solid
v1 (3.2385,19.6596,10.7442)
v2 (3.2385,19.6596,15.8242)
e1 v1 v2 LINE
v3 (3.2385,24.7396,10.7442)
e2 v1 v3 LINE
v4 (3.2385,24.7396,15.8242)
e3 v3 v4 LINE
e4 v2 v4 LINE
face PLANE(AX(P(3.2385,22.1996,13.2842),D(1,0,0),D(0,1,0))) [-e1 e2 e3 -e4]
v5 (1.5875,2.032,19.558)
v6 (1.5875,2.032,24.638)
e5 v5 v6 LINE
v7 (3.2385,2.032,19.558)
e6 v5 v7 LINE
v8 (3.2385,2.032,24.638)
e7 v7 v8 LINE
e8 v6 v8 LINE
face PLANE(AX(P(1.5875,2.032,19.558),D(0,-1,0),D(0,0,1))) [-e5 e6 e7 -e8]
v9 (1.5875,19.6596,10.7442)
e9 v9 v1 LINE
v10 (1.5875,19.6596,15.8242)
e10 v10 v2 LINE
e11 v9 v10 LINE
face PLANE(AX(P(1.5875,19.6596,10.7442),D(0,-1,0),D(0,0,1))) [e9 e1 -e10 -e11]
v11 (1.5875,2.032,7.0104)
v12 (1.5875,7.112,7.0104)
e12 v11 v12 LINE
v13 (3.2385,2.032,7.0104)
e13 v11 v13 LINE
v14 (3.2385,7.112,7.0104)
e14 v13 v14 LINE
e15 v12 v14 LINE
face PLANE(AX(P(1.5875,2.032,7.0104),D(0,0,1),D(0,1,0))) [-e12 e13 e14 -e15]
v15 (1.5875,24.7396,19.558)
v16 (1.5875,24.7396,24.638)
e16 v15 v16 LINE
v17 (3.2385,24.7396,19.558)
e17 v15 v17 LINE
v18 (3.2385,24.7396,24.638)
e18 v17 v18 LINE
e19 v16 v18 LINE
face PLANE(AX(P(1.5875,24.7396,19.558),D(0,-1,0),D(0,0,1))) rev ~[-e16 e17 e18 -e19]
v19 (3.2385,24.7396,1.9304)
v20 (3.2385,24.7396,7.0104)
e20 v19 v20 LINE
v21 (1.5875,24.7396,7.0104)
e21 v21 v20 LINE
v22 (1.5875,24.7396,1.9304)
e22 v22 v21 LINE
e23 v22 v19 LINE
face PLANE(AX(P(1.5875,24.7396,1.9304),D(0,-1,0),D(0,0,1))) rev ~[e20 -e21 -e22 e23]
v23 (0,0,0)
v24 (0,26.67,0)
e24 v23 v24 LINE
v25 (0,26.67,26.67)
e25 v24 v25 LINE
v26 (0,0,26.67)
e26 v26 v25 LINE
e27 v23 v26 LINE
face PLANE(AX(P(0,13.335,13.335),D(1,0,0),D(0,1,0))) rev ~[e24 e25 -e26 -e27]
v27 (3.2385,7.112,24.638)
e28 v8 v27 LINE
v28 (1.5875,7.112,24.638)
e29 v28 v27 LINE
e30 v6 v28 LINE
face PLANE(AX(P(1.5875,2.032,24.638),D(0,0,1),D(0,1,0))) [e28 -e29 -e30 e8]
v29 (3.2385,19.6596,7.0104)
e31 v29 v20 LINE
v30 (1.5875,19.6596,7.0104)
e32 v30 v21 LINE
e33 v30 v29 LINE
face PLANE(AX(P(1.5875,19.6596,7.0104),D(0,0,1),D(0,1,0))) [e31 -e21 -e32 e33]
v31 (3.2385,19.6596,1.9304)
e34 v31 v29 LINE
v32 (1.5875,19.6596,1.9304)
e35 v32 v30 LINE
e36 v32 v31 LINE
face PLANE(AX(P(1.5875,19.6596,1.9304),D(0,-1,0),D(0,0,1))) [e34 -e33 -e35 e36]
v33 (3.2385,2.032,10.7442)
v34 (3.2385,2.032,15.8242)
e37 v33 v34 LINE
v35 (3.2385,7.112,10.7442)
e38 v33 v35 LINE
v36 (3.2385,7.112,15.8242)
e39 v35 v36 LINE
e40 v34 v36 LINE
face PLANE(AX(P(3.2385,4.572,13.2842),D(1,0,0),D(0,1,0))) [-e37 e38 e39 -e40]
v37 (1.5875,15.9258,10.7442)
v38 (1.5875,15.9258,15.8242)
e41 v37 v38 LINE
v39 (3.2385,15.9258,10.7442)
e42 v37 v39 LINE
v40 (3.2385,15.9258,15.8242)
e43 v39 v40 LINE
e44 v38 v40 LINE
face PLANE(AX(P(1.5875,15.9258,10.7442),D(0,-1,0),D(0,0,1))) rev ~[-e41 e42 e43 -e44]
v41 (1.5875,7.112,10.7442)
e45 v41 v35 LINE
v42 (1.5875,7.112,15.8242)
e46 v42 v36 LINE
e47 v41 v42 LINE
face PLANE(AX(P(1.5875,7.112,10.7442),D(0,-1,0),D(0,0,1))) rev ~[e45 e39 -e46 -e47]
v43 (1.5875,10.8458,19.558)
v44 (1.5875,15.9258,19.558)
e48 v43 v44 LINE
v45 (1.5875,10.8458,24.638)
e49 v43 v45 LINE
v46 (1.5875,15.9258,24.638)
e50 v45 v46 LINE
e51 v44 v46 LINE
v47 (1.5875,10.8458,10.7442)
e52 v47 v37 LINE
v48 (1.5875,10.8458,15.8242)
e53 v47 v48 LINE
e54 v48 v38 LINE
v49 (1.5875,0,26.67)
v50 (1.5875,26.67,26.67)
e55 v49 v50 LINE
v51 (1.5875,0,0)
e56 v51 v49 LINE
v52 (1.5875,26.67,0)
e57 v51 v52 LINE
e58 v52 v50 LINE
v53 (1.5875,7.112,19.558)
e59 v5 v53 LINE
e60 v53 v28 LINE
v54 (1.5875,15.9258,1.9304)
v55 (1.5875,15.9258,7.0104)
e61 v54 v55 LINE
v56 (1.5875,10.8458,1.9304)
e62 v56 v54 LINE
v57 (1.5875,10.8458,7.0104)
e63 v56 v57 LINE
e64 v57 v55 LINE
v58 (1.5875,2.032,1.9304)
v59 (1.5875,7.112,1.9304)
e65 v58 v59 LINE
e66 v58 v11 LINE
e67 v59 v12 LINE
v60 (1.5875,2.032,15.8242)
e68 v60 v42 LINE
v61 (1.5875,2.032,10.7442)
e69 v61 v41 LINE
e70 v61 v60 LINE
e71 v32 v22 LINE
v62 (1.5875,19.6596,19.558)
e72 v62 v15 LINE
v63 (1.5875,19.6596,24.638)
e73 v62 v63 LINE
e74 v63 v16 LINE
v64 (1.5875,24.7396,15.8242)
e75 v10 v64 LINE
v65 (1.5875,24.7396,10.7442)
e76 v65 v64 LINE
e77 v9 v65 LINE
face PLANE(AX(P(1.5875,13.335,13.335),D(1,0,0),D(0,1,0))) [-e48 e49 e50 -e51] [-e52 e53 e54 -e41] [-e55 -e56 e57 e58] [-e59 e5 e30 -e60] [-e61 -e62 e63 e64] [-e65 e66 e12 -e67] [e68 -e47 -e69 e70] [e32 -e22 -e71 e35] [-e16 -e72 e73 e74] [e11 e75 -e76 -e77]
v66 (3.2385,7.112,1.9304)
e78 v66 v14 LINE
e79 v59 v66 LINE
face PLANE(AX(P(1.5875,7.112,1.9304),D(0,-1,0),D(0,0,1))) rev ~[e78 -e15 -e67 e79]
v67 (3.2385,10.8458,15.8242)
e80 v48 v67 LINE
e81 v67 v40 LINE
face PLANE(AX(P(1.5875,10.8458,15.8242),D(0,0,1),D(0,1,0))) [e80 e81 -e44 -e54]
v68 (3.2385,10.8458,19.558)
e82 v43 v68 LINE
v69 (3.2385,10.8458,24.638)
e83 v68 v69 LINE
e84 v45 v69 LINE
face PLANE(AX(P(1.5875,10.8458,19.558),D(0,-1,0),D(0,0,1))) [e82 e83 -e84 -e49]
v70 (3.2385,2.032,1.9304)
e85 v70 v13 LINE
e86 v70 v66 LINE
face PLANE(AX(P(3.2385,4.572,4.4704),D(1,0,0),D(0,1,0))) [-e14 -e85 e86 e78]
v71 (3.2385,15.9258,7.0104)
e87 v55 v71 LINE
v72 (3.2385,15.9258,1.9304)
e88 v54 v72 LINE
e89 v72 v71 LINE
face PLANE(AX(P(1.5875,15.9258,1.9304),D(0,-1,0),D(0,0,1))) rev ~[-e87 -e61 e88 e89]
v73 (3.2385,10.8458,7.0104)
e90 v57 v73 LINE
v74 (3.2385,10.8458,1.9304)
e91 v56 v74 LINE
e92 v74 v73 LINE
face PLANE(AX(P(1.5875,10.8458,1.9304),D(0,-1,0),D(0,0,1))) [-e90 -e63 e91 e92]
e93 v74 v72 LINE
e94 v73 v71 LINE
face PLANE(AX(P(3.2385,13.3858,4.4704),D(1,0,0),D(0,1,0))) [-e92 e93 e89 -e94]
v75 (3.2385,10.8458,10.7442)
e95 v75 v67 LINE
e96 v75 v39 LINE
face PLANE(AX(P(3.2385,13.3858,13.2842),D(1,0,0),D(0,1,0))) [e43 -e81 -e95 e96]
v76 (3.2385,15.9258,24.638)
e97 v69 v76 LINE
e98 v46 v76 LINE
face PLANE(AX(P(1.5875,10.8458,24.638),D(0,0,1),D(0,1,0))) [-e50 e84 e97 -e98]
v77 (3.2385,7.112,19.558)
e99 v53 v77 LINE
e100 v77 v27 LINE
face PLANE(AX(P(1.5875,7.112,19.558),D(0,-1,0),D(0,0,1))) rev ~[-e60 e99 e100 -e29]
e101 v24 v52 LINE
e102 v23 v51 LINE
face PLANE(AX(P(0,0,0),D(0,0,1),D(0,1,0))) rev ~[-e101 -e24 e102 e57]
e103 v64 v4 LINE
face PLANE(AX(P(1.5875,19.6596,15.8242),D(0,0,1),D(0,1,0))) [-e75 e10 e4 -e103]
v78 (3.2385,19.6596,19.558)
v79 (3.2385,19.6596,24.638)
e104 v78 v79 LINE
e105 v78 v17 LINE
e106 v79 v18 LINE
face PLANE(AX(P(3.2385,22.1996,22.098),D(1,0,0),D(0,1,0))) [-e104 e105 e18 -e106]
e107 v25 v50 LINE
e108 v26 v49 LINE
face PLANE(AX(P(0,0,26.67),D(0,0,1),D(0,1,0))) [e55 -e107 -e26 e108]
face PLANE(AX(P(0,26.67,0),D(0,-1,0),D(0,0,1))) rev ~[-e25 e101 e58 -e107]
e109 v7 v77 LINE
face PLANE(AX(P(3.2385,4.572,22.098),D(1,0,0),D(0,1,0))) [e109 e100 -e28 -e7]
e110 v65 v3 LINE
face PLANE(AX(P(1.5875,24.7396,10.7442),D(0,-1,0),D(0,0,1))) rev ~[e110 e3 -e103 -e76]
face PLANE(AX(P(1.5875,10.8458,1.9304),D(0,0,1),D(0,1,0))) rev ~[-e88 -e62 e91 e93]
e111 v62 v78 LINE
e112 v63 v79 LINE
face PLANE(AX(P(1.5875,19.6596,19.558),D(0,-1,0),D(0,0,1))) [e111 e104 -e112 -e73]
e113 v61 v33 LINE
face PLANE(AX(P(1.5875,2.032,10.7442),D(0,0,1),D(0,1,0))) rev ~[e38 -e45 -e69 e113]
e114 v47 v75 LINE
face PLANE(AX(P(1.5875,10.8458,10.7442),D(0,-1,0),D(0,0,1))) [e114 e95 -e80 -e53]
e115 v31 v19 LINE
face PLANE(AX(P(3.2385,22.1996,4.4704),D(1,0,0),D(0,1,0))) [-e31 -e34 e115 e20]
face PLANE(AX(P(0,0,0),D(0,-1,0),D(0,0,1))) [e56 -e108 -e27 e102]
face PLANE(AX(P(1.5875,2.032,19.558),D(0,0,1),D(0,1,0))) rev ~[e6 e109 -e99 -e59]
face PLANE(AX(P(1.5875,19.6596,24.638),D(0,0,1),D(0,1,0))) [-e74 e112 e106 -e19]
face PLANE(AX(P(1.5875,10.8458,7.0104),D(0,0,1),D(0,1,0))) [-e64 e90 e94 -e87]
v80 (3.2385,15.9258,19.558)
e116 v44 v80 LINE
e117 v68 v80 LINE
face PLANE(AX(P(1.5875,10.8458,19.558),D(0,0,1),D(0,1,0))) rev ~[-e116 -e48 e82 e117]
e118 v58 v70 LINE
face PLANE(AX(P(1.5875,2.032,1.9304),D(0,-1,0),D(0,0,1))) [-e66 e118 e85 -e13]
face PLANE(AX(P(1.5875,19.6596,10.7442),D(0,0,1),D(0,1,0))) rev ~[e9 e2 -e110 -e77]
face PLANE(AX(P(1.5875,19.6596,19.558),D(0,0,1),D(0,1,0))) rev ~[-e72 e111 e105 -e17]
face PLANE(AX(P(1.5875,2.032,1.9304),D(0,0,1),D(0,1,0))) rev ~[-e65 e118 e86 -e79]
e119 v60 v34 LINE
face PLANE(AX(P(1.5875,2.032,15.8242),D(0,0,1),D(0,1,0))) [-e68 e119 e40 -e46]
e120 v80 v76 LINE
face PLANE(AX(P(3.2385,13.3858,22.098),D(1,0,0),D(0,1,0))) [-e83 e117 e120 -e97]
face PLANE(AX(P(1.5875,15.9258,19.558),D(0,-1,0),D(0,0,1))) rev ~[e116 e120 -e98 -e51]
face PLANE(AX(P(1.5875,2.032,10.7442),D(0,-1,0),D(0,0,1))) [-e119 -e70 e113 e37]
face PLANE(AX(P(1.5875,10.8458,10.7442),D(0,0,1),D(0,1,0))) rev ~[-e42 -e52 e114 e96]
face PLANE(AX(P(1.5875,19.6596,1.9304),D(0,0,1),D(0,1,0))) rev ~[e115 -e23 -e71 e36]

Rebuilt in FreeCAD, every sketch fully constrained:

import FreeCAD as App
import Part
import Sketcher
from FreeCAD import Vector
Q = App.Units.Quantity


def add_polygon(sketch, points):
    """Adds a closed chain of lines whose ends are joined by coincident constraints."""
    first, n = sketch.GeometryCount, len(points)
    for a, b in zip(points, points[1:] + points[:1]):
        sketch.addGeometry(Part.LineSegment(App.Vector(*a, 0), App.Vector(*b, 0)), False)
    for i in range(n):
        sketch.addConstraint(Sketcher.Constraint("Coincident", first + i, 2, first + (i + 1) % n, 1))

doc = App.newDocument("Part")
params = doc.addObject("Spreadsheet::Sheet", "Params")
for row, (alias, value) in enumerate([
    ("sketch1_width", "1.05 in"),
    ("pad1_length", "0.0625 in"),
    ("sketch2_width", "0.2 in"),
    ("pad2_length", "0.065 in"),
], start=1):
    params.set(f"A{row}", alias)
    params.set(f"B{row}", "=" + value)
    params.setAlias(f"B{row}", alias)

body = doc.addObject("PartDesign::Body", "Body")

sketch1 = body.newObject("Sketcher::SketchObject", "Sketch")
sketch1.AttachmentSupport = (doc.getObject("YZ_Plane"), [""])
sketch1.MapMode = "FlatFace"
add_polygon(sketch1, [(0, 26.67), (0, 0), (26.67, 0), (26.67, 26.67)])
sketch1.addConstraint(Sketcher.Constraint("Vertical", 0))
sketch1.addConstraint(Sketcher.Constraint("Horizontal", 1))
sketch1.addConstraint(Sketcher.Constraint("Vertical", 2))
sketch1.addConstraint(Sketcher.Constraint("Horizontal", 3))
sketch1.addConstraint(Sketcher.Constraint("Coincident", 0, 2, -1, 1))
sketch1.addConstraint(Sketcher.Constraint("Equal", 3, 0))
sketch1.addConstraint(Sketcher.Constraint("DistanceX", 1, 1, 1, 2, Q("1.05 in")))
sketch1.setExpression("Constraints[10]", "Params.sketch1_width")
pad1 = body.newObject("PartDesign::Pad", "Pad")
pad1.Profile = sketch1
pad1.setExpression("Length", "Params.pad1_length")

sketch2 = body.newObject("Sketcher::SketchObject", "Sketch001")
sketch2.AttachmentSupport = (doc.getObject("YZ_Plane"), [""])
sketch2.MapMode = "FlatFace"
sketch2.AttachmentOffset = App.Placement(Vector(0, 0, 0.0625 * 25.4), App.Rotation())
add_polygon(sketch2, [(2.032, 24.638), (2.032, 19.558), (7.112, 19.558), (7.112, 24.638)])
add_polygon(sketch2, [(2.032, 15.8242), (2.032, 10.7442), (7.112, 10.7442), (7.112, 15.8242)])
add_polygon(sketch2, [(2.032, 7.0104), (2.032, 1.9304), (7.112, 1.9304), (7.112, 7.0104)])
add_polygon(sketch2, [(10.8458, 24.638), (10.8458, 19.558), (15.9258, 19.558), (15.9258, 24.638)])
add_polygon(sketch2, [(10.8458, 15.8242), (10.8458, 10.7442), (15.9258, 10.7442), (15.9258, 15.8242)])
add_polygon(sketch2, [(10.8458, 7.0104), (10.8458, 1.9304), (15.9258, 1.9304), (15.9258, 7.0104)])
add_polygon(sketch2, [(19.6596, 24.638), (19.6596, 19.558), (24.7396, 19.558), (24.7396, 24.638)])
add_polygon(sketch2, [(19.6596, 15.8242), (19.6596, 10.7442), (24.7396, 10.7442), (24.7396, 15.8242)])
add_polygon(sketch2, [(19.6596, 7.0104), (19.6596, 1.9304), (24.7396, 1.9304), (24.7396, 7.0104)])
sketch2.addConstraint(Sketcher.Constraint("Vertical", 0))
sketch2.addConstraint(Sketcher.Constraint("Horizontal", 1))
sketch2.addConstraint(Sketcher.Constraint("Vertical", 2))
sketch2.addConstraint(Sketcher.Constraint("Horizontal", 3))
sketch2.addConstraint(Sketcher.Constraint("Vertical", 4))
sketch2.addConstraint(Sketcher.Constraint("Horizontal", 5))
sketch2.addConstraint(Sketcher.Constraint("Vertical", 6))
sketch2.addConstraint(Sketcher.Constraint("Horizontal", 7))
sketch2.addConstraint(Sketcher.Constraint("Vertical", 8))
sketch2.addConstraint(Sketcher.Constraint("Horizontal", 9))
sketch2.addConstraint(Sketcher.Constraint("Vertical", 10))
sketch2.addConstraint(Sketcher.Constraint("Horizontal", 11))
sketch2.addConstraint(Sketcher.Constraint("Vertical", 12))
sketch2.addConstraint(Sketcher.Constraint("Horizontal", 13))
sketch2.addConstraint(Sketcher.Constraint("Vertical", 14))
sketch2.addConstraint(Sketcher.Constraint("Horizontal", 15))
sketch2.addConstraint(Sketcher.Constraint("Vertical", 16))
sketch2.addConstraint(Sketcher.Constraint("Horizontal", 17))
sketch2.addConstraint(Sketcher.Constraint("Vertical", 18))
sketch2.addConstraint(Sketcher.Constraint("Horizontal", 19))
sketch2.addConstraint(Sketcher.Constraint("Vertical", 20))
sketch2.addConstraint(Sketcher.Constraint("Horizontal", 21))
sketch2.addConstraint(Sketcher.Constraint("Vertical", 22))
sketch2.addConstraint(Sketcher.Constraint("Horizontal", 23))
sketch2.addConstraint(Sketcher.Constraint("Vertical", 24))
sketch2.addConstraint(Sketcher.Constraint("Horizontal", 25))
sketch2.addConstraint(Sketcher.Constraint("Vertical", 26))
sketch2.addConstraint(Sketcher.Constraint("Horizontal", 27))
sketch2.addConstraint(Sketcher.Constraint("Vertical", 28))
sketch2.addConstraint(Sketcher.Constraint("Horizontal", 29))
sketch2.addConstraint(Sketcher.Constraint("Vertical", 30))
sketch2.addConstraint(Sketcher.Constraint("Horizontal", 31))
sketch2.addConstraint(Sketcher.Constraint("Vertical", 32))
sketch2.addConstraint(Sketcher.Constraint("Horizontal", 33))
sketch2.addConstraint(Sketcher.Constraint("Vertical", 34))
sketch2.addConstraint(Sketcher.Constraint("Horizontal", 35))
sketch2.addConstraint(Sketcher.Constraint("Horizontal", 1, 2, 12, 2))
sketch2.addConstraint(Sketcher.Constraint("Horizontal", 3, 2, 14, 2))
sketch2.addConstraint(Sketcher.Constraint("Horizontal", 5, 2, 16, 2))
sketch2.addConstraint(Sketcher.Constraint("Horizontal", 7, 2, 18, 2))
sketch2.addConstraint(Sketcher.Constraint("Horizontal", 9, 2, 20, 2))
sketch2.addConstraint(Sketcher.Constraint("Horizontal", 11, 2, 22, 2))
sketch2.addConstraint(Sketcher.Constraint("Horizontal", 13, 2, 24, 2))
sketch2.addConstraint(Sketcher.Constraint("Horizontal", 15, 2, 26, 2))
sketch2.addConstraint(Sketcher.Constraint("Horizontal", 17, 2, 28, 2))
sketch2.addConstraint(Sketcher.Constraint("Horizontal", 19, 2, 30, 2))
sketch2.addConstraint(Sketcher.Constraint("Horizontal", 21, 2, 32, 2))
sketch2.addConstraint(Sketcher.Constraint("Horizontal", 23, 2, 34, 2))
sketch2.addConstraint(Sketcher.Constraint("Vertical", 3, 2, 4, 2))
sketch2.addConstraint(Sketcher.Constraint("Vertical", 2, 2, 5, 2))
sketch2.addConstraint(Sketcher.Constraint("Vertical", 7, 2, 8, 2))
sketch2.addConstraint(Sketcher.Constraint("Vertical", 6, 2, 9, 2))
sketch2.addConstraint(Sketcher.Constraint("Vertical", 15, 2, 16, 2))
sketch2.addConstraint(Sketcher.Constraint("Vertical", 14, 2, 17, 2))
sketch2.addConstraint(Sketcher.Constraint("Vertical", 19, 2, 20, 2))
sketch2.addConstraint(Sketcher.Constraint("Vertical", 18, 2, 21, 2))
sketch2.addConstraint(Sketcher.Constraint("Vertical", 27, 2, 28, 2))
sketch2.addConstraint(Sketcher.Constraint("Vertical", 26, 2, 29, 2))
sketch2.addConstraint(Sketcher.Constraint("Vertical", 31, 2, 32, 2))
sketch2.addConstraint(Sketcher.Constraint("Vertical", 30, 2, 33, 2))
sketch2.addConstraint(Sketcher.Constraint("Equal", 11, 13))
sketch2.addConstraint(Sketcher.Constraint("Equal", 23, 25))
sketch2.addConstraint(Sketcher.Constraint("Equal", 35, 0))
sketch2.addConstraint(Sketcher.Constraint("Equal", 2, 4))
sketch2.addConstraint(Sketcher.Constraint("Equal", 6, 8))
sketch2.addConstraint(Sketcher.Constraint("DistanceX", 1, 1, 1, 2, Q("0.2 in")))
sketch2.addConstraint(Sketcher.Constraint("DistanceX", -1, 1, 0, 2, Q("0.08 in")))
sketch2.addConstraint(Sketcher.Constraint("DistanceY", -1, 1, 0, 2, Q("0.77 in")))
sketch2.addConstraint(Sketcher.Constraint("DistanceY", -1, 1, 4, 2, Q("0.423 in")))
sketch2.addConstraint(Sketcher.Constraint("DistanceY", -1, 1, 8, 2, Q("0.076 in")))
sketch2.addConstraint(Sketcher.Constraint("DistanceX", -1, 1, 12, 2, Q("0.427 in")))
sketch2.addConstraint(Sketcher.Constraint("DistanceX", -1, 1, 24, 2, Q("0.774 in")))
sketch2.setExpression("Constraints[101]", "Params.sketch2_width")
pad2 = body.newObject("PartDesign::Pad", "Pad001")
pad2.Profile = sketch2
pad2.setExpression("Length", "Params.pad2_length")

doc.recompute()
